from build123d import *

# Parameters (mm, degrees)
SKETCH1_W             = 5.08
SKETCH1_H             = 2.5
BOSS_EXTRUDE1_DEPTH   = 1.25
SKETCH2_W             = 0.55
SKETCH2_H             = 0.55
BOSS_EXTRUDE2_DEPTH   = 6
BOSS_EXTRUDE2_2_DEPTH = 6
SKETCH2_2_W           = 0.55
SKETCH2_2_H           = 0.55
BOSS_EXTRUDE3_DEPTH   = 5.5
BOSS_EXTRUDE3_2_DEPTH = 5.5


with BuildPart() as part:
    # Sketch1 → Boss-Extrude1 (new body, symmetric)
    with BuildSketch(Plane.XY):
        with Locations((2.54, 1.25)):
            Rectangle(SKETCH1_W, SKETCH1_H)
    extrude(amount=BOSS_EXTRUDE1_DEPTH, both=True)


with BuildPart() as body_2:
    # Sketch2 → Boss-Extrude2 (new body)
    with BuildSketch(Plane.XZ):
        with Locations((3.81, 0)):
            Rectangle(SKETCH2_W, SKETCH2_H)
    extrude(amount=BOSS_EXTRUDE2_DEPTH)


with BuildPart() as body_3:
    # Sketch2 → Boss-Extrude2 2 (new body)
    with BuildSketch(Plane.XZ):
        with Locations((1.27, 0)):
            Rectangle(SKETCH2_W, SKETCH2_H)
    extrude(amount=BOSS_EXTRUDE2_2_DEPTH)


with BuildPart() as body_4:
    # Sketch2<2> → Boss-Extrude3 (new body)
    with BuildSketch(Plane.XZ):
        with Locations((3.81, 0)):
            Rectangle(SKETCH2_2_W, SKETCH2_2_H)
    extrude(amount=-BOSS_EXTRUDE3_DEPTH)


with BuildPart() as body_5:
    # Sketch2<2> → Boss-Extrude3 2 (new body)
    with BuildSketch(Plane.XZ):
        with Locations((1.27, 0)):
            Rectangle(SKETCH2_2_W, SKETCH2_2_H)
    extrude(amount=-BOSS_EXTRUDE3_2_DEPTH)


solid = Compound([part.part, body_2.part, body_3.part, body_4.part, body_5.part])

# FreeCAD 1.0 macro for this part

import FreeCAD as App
import Part
import Sketcher
from FreeCAD import Vector
Q = App.Units.Quantity


def add_polygon(sketch, points):
    """Adds a closed chain of lines whose ends are joined by coincident constraints."""
    first, n = sketch.GeometryCount, len(points)
    for a, b in zip(points, points[1:] + points[:1]):
        sketch.addGeometry(Part.LineSegment(App.Vector(*a, 0), App.Vector(*b, 0)), False)
    for i in range(n):
        sketch.addConstraint(Sketcher.Constraint("Coincident", first + i, 2, first + (i + 1) % n, 1))

doc = App.newDocument("Part")
body = doc.addObject("PartDesign::Body", "Body")

sketch1 = doc.addObject("Sketcher::SketchObject", "Sketch")
body.addObject(sketch1)
sketch1.AttachmentSupport = (doc.XY_Plane, [""])
sketch1.MapMode = "FlatFace"
add_polygon(sketch1, [(0, 2.5), (0, 0), (5.1, 0), (5.1, 2.5)])
sketch1.addConstraint(Sketcher.Constraint("Vertical", 0))
sketch1.addConstraint(Sketcher.Constraint("Horizontal", 1))
sketch1.addConstraint(Sketcher.Constraint("Vertical", 2))
sketch1.addConstraint(Sketcher.Constraint("Horizontal", 3))
sketch1.addConstraint(Sketcher.Constraint("Coincident", 0, 2, -1, 1))
sketch1.addConstraint(Sketcher.Constraint("DistanceY", 0, 2, 0, 1, Q("2.5 mm")))
sketch1.addConstraint(Sketcher.Constraint("DistanceX", 1, 1, 1, 2, Q("5.08 mm")))
pad1 = doc.addObject("PartDesign::Pad", "Pad")
body.addObject(pad1)
pad1.Profile = sketch1
pad1.Length = 2.5
pad1.Midplane = True
body2 = doc.addObject("PartDesign::Body", "Body001")

sketch2 = doc.addObject("Sketcher::SketchObject", "Sketch001")
body2.addObject(sketch2)
sketch2.AttachmentSupport = (doc.getObject("XZ_Plane001"), [""])
sketch2.MapMode = "FlatFace"
add_polygon(sketch2, [(3.5, 0.3), (3.5, -0.3), (4.1, -0.3), (4.1, 0.3)])
sketch2.addConstraint(Sketcher.Constraint("Vertical", 0))
sketch2.addConstraint(Sketcher.Constraint("Horizontal", 1))
sketch2.addConstraint(Sketcher.Constraint("Vertical", 2))
sketch2.addConstraint(Sketcher.Constraint("Horizontal", 3))
sketch2.addConstraint(Sketcher.Constraint("Equal", 3, 0))
sketch2.addConstraint(Sketcher.Constraint("DistanceX", 1, 1, 1, 2, Q("0.55 mm")))
sketch2.addConstraint(Sketcher.Constraint("DistanceX", -1, 1, 0, 2, Q("3.535 mm")))
sketch2.addConstraint(Sketcher.Constraint("DistanceY", 0, 2, -1, 1, Q("0.275 mm")))
pad2 = doc.addObject("PartDesign::Pad", "Pad001")
body2.addObject(pad2)
pad2.Profile = sketch2
pad2.Length = 6
body3 = doc.addObject("PartDesign::Body", "Body002")

sketch3 = doc.addObject("Sketcher::SketchObject", "Sketch002")
body3.addObject(sketch3)
sketch3.AttachmentSupport = (doc.getObject("XZ_Plane002"), [""])
sketch3.MapMode = "FlatFace"
add_polygon(sketch3, [(1, 0.3), (1, -0.3), (1.5, -0.3), (1.5, 0.3)])
sketch3.addConstraint(Sketcher.Constraint("Vertical", 0))
sketch3.addConstraint(Sketcher.Constraint("Horizontal", 1))
sketch3.addConstraint(Sketcher.Constraint("Vertical", 2))
sketch3.addConstraint(Sketcher.Constraint("Horizontal", 3))
sketch3.addConstraint(Sketcher.Constraint("Equal", 3, 0))
sketch3.addConstraint(Sketcher.Constraint("DistanceX", 1, 1, 1, 2, Q("0.55 mm")))
sketch3.addConstraint(Sketcher.Constraint("DistanceX", -1, 1, 0, 2, Q("0.995 mm")))
sketch3.addConstraint(Sketcher.Constraint("DistanceY", 0, 2, -1, 1, Q("0.275 mm")))
pad3 = doc.addObject("PartDesign::Pad", "Pad002")
body3.addObject(pad3)
pad3.Profile = sketch3
pad3.Length = 6
body4 = doc.addObject("PartDesign::Body", "Body003")

sketch4 = doc.addObject("Sketcher::SketchObject", "Sketch003")
body4.addObject(sketch4)
sketch4.AttachmentSupport = (doc.getObject("XZ_Plane003"), [""])
sketch4.MapMode = "FlatFace"
add_polygon(sketch4, [(3.5, 0.3), (3.5, -0.3), (4.1, -0.3), (4.1, 0.3)])
sketch4.addConstraint(Sketcher.Constraint("Vertical", 0))
sketch4.addConstraint(Sketcher.Constraint("Horizontal", 1))
sketch4.addConstraint(Sketcher.Constraint("Vertical", 2))
sketch4.addConstraint(Sketcher.Constraint("Horizontal", 3))
sketch4.addConstraint(Sketcher.Constraint("Equal", 3, 0))
sketch4.addConstraint(Sketcher.Constraint("DistanceX", 1, 1, 1, 2, Q("0.55 mm")))
sketch4.addConstraint(Sketcher.Constraint("DistanceX", -1, 1, 0, 2, Q("3.535 mm")))
sketch4.addConstraint(Sketcher.Constraint("DistanceY", 0, 2, -1, 1, Q("0.275 mm")))
pad4 = doc.addObject("PartDesign::Pad", "Pad003")
body4.addObject(pad4)
pad4.Profile = sketch4
pad4.Length = 5.5
pad4.Reversed = True
body5 = doc.addObject("PartDesign::Body", "Body004")

sketch5 = doc.addObject("Sketcher::SketchObject", "Sketch004")
body5.addObject(sketch5)
sketch5.AttachmentSupport = (doc.getObject("XZ_Plane004"), [""])
sketch5.MapMode = "FlatFace"
add_polygon(sketch5, [(1, 0.3), (1, -0.3), (1.5, -0.3), (1.5, 0.3)])
sketch5.addConstraint(Sketcher.Constraint("Vertical", 0))
sketch5.addConstraint(Sketcher.Constraint("Horizontal", 1))
sketch5.addConstraint(Sketcher.Constraint("Vertical", 2))
sketch5.addConstraint(Sketcher.Constraint("Horizontal", 3))
sketch5.addConstraint(Sketcher.Constraint("Equal", 3, 0))
sketch5.addConstraint(Sketcher.Constraint("DistanceX", 1, 1, 1, 2, Q("0.55 mm")))
sketch5.addConstraint(Sketcher.Constraint("DistanceX", -1, 1, 0, 2, Q("0.995 mm")))
sketch5.addConstraint(Sketcher.Constraint("DistanceY", 0, 2, -1, 1, Q("0.275 mm")))
pad5 = doc.addObject("PartDesign::Pad", "Pad004")
body5.addObject(pad5)
pad5.Profile = sketch5
pad5.Length = 5.5
pad5.Reversed = True

doc.recompute()
